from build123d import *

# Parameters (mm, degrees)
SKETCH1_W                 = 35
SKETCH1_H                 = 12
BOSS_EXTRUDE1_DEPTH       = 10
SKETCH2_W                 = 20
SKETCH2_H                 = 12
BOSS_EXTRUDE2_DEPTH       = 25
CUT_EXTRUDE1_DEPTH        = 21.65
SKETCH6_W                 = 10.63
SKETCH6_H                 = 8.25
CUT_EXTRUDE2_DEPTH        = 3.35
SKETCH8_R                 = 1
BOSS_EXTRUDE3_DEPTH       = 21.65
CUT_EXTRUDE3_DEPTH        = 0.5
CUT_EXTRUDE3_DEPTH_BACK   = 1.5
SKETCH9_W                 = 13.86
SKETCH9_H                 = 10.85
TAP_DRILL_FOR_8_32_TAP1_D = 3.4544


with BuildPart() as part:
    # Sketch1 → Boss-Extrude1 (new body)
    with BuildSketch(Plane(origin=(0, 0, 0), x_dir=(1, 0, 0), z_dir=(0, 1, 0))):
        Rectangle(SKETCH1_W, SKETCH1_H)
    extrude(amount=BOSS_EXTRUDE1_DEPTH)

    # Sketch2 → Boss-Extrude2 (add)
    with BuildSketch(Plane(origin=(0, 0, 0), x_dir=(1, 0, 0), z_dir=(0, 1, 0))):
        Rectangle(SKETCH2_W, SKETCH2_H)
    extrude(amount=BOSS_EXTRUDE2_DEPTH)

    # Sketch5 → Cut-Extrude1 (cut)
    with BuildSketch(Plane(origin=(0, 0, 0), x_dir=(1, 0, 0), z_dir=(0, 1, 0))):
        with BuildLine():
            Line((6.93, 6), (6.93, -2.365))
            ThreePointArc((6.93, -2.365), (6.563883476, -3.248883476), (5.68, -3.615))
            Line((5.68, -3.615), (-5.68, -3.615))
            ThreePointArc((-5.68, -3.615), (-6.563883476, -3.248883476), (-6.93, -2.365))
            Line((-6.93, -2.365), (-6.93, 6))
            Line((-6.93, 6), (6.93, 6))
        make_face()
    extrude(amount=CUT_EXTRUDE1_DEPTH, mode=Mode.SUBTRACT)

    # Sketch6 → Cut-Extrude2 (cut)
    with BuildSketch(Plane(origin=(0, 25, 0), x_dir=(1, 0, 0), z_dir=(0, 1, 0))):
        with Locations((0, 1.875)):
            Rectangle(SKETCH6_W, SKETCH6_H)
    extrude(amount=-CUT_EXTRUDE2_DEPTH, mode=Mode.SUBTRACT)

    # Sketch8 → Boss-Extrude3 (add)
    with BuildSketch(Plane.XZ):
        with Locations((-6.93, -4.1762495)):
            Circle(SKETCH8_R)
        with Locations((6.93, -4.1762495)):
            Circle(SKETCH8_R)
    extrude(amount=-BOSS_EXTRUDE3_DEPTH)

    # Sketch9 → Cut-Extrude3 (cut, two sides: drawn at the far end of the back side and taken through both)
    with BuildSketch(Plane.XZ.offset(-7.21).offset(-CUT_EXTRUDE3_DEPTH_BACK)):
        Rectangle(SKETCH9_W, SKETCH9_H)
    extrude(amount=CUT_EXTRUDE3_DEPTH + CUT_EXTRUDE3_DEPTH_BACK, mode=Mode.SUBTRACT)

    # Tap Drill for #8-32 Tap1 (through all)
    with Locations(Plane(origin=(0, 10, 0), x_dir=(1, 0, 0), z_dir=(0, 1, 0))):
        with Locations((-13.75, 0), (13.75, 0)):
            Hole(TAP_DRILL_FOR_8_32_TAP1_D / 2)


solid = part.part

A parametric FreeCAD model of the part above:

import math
import FreeCAD as App
import Part
import Sketcher
from FreeCAD import Vector
Q = App.Units.Quantity

doc = App.newDocument("Part")
body = doc.addObject("PartDesign::Body", "Body")

# Sketch on XZ plane
sketch1 = body.newObject("Sketcher::SketchObject", "Sketch")
sketch1.AttachmentSupport = (doc.getObject("XZ_Plane"), [""])
sketch1.MapMode = "FlatFace"
sketch1.addGeometry(Part.LineSegment(Vector(-18, -6, 0), Vector(-18, 6, 0)), False)
sketch1.addGeometry(Part.LineSegment(Vector(-18, 6, 0), Vector(18, 6, 0)), False)
sketch1.addGeometry(Part.LineSegment(Vector(18, 6, 0), Vector(18, -6, 0)), False)
sketch1.addGeometry(Part.LineSegment(Vector(18, -6, 0), Vector(-18, -6, 0)), False)
sketch1.addConstraint(Sketcher.Constraint("Coincident", 0, 2, 1, 1))
sketch1.addConstraint(Sketcher.Constraint("Coincident", 1, 2, 2, 1))
sketch1.addConstraint(Sketcher.Constraint("Coincident", 2, 2, 3, 1))
sketch1.addConstraint(Sketcher.Constraint("Coincident", 3, 2, 0, 1))
sketch1.addConstraint(Sketcher.Constraint("Vertical", 0))
sketch1.addConstraint(Sketcher.Constraint("Horizontal", 1))
sketch1.addConstraint(Sketcher.Constraint("Vertical", 2))
sketch1.addConstraint(Sketcher.Constraint("Horizontal", 3))
sketch1.addConstraint(Sketcher.Constraint("Symmetric", 0, 2, 2, 2, -1, 1))
sketch1.addConstraint(Sketcher.Constraint("DistanceX", 1, 1, 1, 2, Q("35 mm")))
sketch1.addConstraint(Sketcher.Constraint("DistanceY", 0, 1, 0, 2, Q("12 mm")))
pad1 = body.newObject("PartDesign::Pad", "Pad")
pad1.Profile = sketch1
pad1.Length = 10
pad1.Reversed = True

# Sketch on XZ plane
sketch2 = body.newObject("Sketcher::SketchObject", "Sketch001")
sketch2.AttachmentSupport = (doc.getObject("XZ_Plane"), [""])
sketch2.MapMode = "FlatFace"
sketch2.addGeometry(Part.LineSegment(Vector(-10, -6, 0), Vector(-10, 6, 0)), False)
sketch2.addGeometry(Part.LineSegment(Vector(-10, 6, 0), Vector(10, 6, 0)), False)
sketch2.addGeometry(Part.LineSegment(Vector(10, 6, 0), Vector(10, -6, 0)), False)
sketch2.addGeometry(Part.LineSegment(Vector(10, -6, 0), Vector(-10, -6, 0)), False)
sketch2.addConstraint(Sketcher.Constraint("Coincident", 0, 2, 1, 1))
sketch2.addConstraint(Sketcher.Constraint("Coincident", 1, 2, 2, 1))
sketch2.addConstraint(Sketcher.Constraint("Coincident", 2, 2, 3, 1))
sketch2.addConstraint(Sketcher.Constraint("Coincident", 3, 2, 0, 1))
sketch2.addConstraint(Sketcher.Constraint("Vertical", 0))
sketch2.addConstraint(Sketcher.Constraint("Horizontal", 1))
sketch2.addConstraint(Sketcher.Constraint("Vertical", 2))
sketch2.addConstraint(Sketcher.Constraint("Horizontal", 3))
sketch2.addConstraint(Sketcher.Constraint("Symmetric", 0, 2, 2, 2, -1, 1))
sketch2.addConstraint(Sketcher.Constraint("DistanceX", 1, 1, 1, 2, Q("20 mm")))
sketch2.addConstraint(Sketcher.Constraint("DistanceY", 0, 1, 0, 2, Q("12 mm")))
pad2 = body.newObject("PartDesign::Pad", "Pad001")
pad2.Profile = sketch2
pad2.Length = 25
pad2.Reversed = True

# Sketch on XZ plane
sketch3 = body.newObject("Sketcher::SketchObject", "Sketch002")
sketch3.AttachmentSupport = (doc.getObject("XZ_Plane"), [""])
sketch3.MapMode = "FlatFace"
sketch3.addGeometry(Part.LineSegment(Vector(6.9, 2.4, 0), Vector(6.9, -6, 0)), False)
sketch3.addGeometry(Part.LineSegment(Vector(6.9, -6, 0), Vector(-6.9, -6, 0)), False)
sketch3.addGeometry(Part.LineSegment(Vector(-6.9, -6, 0), Vector(-6.9, 2.4, 0)), False)
sketch3.addGeometry(Part.ArcOfCircle(Part.Circle(Vector(-5.7, 2.4, 0), Vector(0, 0, 1), 1.3), math.radians(90), math.radians(180)), False)
sketch3.addGeometry(Part.LineSegment(Vector(-5.7, 3.6, 0), Vector(5.7, 3.6, 0)), False)
sketch3.addGeometry(Part.ArcOfCircle(Part.Circle(Vector(5.7, 2.4, 0), Vector(0, 0, 1), 1.3), math.radians(0), math.radians(90)), False)
sketch3.addConstraint(Sketcher.Constraint("Coincident", 0, 2, 1, 1))
sketch3.addConstraint(Sketcher.Constraint("Coincident", 1, 2, 2, 1))
sketch3.addConstraint(Sketcher.Constraint("Tangent", 2, 2, 3, 2))
sketch3.addConstraint(Sketcher.Constraint("Tangent", 3, 1, 4, 1))
sketch3.addConstraint(Sketcher.Constraint("Tangent", 4, 2, 5, 2))
sketch3.addConstraint(Sketcher.Constraint("Tangent", 5, 1, 0, 1))
sketch3.addConstraint(Sketcher.Constraint("Vertical", 0))
sketch3.addConstraint(Sketcher.Constraint("Horizontal", 1))
sketch3.addConstraint(Sketcher.Constraint("Vertical", 2))
sketch3.addConstraint(Sketcher.Constraint("Horizontal", 4))
sketch3.addConstraint(Sketcher.Constraint("Equal", 3, 5))
sketch3.addConstraint(Sketcher.Constraint("Radius", 3, Q("1.25 mm")))
sketch3.addConstraint(Sketcher.Constraint("DistanceY", 0, 2, -1, 1, Q("6 mm")))
sketch3.addConstraint(Sketcher.Constraint("DistanceX", 1, 2, 1, 1, Q("13.86 mm")))
sketch3.addConstraint(Sketcher.Constraint("DistanceY", 0, 2, 0, 1, Q("8.365 mm")))
sketch3.addConstraint(Sketcher.Constraint("DistanceX", 3, 3, -1, 1, Q("5.68 mm")))
pocket1 = body.newObject("PartDesign::Pocket", "Pocket")
pocket1.Profile = sketch3
pocket1.Length = 21.65

# Sketch on XZ plane
sketch4 = body.newObject("Sketcher::SketchObject", "Sketch003")
sketch4.AttachmentSupport = (doc.getObject("XZ_Plane"), [""])
sketch4.MapMode = "FlatFace"
sketch4.AttachmentOffset = App.Placement(Vector(0, 0, -25), App.Rotation())
sketch4.addGeometry(Part.LineSegment(Vector(-5, -6, 0), Vector(-5, 2, 0)), False)
sketch4.addGeometry(Part.LineSegment(Vector(-5, 2, 0), Vector(5, 2, 0)), False)
sketch4.addGeometry(Part.LineSegment(Vector(5, 2, 0), Vector(5, -6, 0)), False)
sketch4.addGeometry(Part.LineSegment(Vector(5, -6, 0), Vector(-5, -6, 0)), False)
sketch4.addConstraint(Sketcher.Constraint("Coincident", 0, 2, 1, 1))
sketch4.addConstraint(Sketcher.Constraint("Coincident", 1, 2, 2, 1))
sketch4.addConstraint(Sketcher.Constraint("Coincident", 2, 2, 3, 1))
sketch4.addConstraint(Sketcher.Constraint("Coincident", 3, 2, 0, 1))
sketch4.addConstraint(Sketcher.Constraint("Vertical", 0))
sketch4.addConstraint(Sketcher.Constraint("Horizontal", 1))
sketch4.addConstraint(Sketcher.Constraint("Vertical", 2))
sketch4.addConstraint(Sketcher.Constraint("Horizontal", 3))
sketch4.addConstraint(Sketcher.Constraint("DistanceY", 2, 2, -1, 1, Q("6 mm")))
sketch4.addConstraint(Sketcher.Constraint("DistanceX", 1, 1, 1, 2, Q("10.63 mm")))
sketch4.addConstraint(Sketcher.Constraint("DistanceY", 0, 1, 0, 2, Q("8.25 mm")))
sketch4.addConstraint(Sketcher.Constraint("DistanceX", 0, 2, -1, 1, Q("5.315 mm")))
pocket2 = body.newObject("PartDesign::Pocket", "Pocket001")
pocket2.Profile = sketch4
pocket2.Length = 3.35
pocket2.Reversed = True

# Sketch on XZ plane
sketch5 = body.newObject("Sketcher::SketchObject", "Sketch004")
sketch5.AttachmentSupport = (doc.getObject("XZ_Plane"), [""])
sketch5.MapMode = "FlatFace"
sketch5.addGeometry(Part.Circle(Vector(-6.9, -4.2, 0), Vector(0, 0, 1), 1), False)
sketch5.addGeometry(Part.Circle(Vector(6.9, -4.2, 0), Vector(0, 0, 1), 1), False)
sketch5.addConstraint(Sketcher.Constraint("Equal", 0, 1))
sketch5.addConstraint(Sketcher.Constraint("Symmetric", 0, 3, 1, 3, -2))
sketch5.addConstraint(Sketcher.Constraint("Diameter", 0, Q("2 mm")))
sketch5.addConstraint(Sketcher.Constraint("DistanceX", 0, 3, -1, 1, Q("6.93 mm")))
sketch5.addConstraint(Sketcher.Constraint("DistanceY", 0, 3, -1, 1, Q("4.176249 mm")))
pad3 = body.newObject("PartDesign::Pad", "Pad002")
pad3.Profile = sketch5
pad3.Length = 21.65
pad3.Reversed = True

# Sketch on XZ plane
sketch6 = body.newObject("Sketcher::SketchObject", "Sketch005")
sketch6.AttachmentSupport = (doc.getObject("XZ_Plane"), [""])
sketch6.MapMode = "FlatFace"
sketch6.AttachmentOffset = App.Placement(Vector(0, 0, -7.21), App.Rotation())
sketch6.addGeometry(Part.LineSegment(Vector(-7, 5, 0), Vector(-7, -5, 0)), False)
sketch6.addGeometry(Part.LineSegment(Vector(-7, -5, 0), Vector(7, -5, 0)), False)
sketch6.addGeometry(Part.LineSegment(Vector(7, -5, 0), Vector(7, 5, 0)), False)
sketch6.addGeometry(Part.LineSegment(Vector(7, 5, 0), Vector(-7, 5, 0)), False)
sketch6.addConstraint(Sketcher.Constraint("Coincident", 0, 2, 1, 1))
sketch6.addConstraint(Sketcher.Constraint("Coincident", 1, 2, 2, 1))
sketch6.addConstraint(Sketcher.Constraint("Coincident", 2, 2, 3, 1))
sketch6.addConstraint(Sketcher.Constraint("Coincident", 3, 2, 0, 1))
sketch6.addConstraint(Sketcher.Constraint("Vertical", 0))
sketch6.addConstraint(Sketcher.Constraint("Horizontal", 1))
sketch6.addConstraint(Sketcher.Constraint("Vertical", 2))
sketch6.addConstraint(Sketcher.Constraint("Horizontal", 3))
sketch6.addConstraint(Sketcher.Constraint("Symmetric", 0, 2, 2, 2, -1, 1))
sketch6.addConstraint(Sketcher.Constraint("DistanceX", 1, 1, 1, 2, Q("13.86 mm")))
sketch6.addConstraint(Sketcher.Constraint("DistanceY", 0, 2, 0, 1, Q("10.85 mm")))
pocket3 = body.newObject("PartDesign::Pocket", "Pocket002")
pocket3.Profile = sketch6
pocket3.Type = "TwoLengths"
pocket3.Length = 0.5
pocket3.Length2 = 1.5
pocket3.Reversed = True

# Sketch on XZ plane
sketch7 = body.newObject("Sketcher::SketchObject", "Sketch006")
sketch7.AttachmentSupport = (doc.getObject("XZ_Plane"), [""])
sketch7.MapMode = "FlatFace"
sketch7.AttachmentOffset = App.Placement(Vector(0, 0, -10), App.Rotation())
sketch7.addGeometry(Part.Circle(Vector(-13.8, 0, 0), Vector(0, 0, 1), 1.7), False)
sketch7.addGeometry(Part.Circle(Vector(13.8, 0, 0), Vector(0, 0, 1), 1.7), False)
sketch7.addConstraint(Sketcher.Constraint("Equal", 0, 1))
sketch7.addConstraint(Sketcher.Constraint("Symmetric", 0, 3, 1, 3, -1, 1))
sketch7.addConstraint(Sketcher.Constraint("PointOnObject", 0, 3, -1))
sketch7.addConstraint(Sketcher.Constraint("Diameter", 0, Q("3.4544 mm")))
sketch7.addConstraint(Sketcher.Constraint("DistanceX", 0, 3, 1, 3, Q("27.5 mm")))
doc.recompute()
hole = body.newObject("PartDesign::Hole", "Hole")
hole.Profile = sketch7
hole.ThreadType = "None"
hole.Diameter = 3.4544
hole.DepthType = "ThroughAll"
hole.Reversed = True

doc.recompute()
